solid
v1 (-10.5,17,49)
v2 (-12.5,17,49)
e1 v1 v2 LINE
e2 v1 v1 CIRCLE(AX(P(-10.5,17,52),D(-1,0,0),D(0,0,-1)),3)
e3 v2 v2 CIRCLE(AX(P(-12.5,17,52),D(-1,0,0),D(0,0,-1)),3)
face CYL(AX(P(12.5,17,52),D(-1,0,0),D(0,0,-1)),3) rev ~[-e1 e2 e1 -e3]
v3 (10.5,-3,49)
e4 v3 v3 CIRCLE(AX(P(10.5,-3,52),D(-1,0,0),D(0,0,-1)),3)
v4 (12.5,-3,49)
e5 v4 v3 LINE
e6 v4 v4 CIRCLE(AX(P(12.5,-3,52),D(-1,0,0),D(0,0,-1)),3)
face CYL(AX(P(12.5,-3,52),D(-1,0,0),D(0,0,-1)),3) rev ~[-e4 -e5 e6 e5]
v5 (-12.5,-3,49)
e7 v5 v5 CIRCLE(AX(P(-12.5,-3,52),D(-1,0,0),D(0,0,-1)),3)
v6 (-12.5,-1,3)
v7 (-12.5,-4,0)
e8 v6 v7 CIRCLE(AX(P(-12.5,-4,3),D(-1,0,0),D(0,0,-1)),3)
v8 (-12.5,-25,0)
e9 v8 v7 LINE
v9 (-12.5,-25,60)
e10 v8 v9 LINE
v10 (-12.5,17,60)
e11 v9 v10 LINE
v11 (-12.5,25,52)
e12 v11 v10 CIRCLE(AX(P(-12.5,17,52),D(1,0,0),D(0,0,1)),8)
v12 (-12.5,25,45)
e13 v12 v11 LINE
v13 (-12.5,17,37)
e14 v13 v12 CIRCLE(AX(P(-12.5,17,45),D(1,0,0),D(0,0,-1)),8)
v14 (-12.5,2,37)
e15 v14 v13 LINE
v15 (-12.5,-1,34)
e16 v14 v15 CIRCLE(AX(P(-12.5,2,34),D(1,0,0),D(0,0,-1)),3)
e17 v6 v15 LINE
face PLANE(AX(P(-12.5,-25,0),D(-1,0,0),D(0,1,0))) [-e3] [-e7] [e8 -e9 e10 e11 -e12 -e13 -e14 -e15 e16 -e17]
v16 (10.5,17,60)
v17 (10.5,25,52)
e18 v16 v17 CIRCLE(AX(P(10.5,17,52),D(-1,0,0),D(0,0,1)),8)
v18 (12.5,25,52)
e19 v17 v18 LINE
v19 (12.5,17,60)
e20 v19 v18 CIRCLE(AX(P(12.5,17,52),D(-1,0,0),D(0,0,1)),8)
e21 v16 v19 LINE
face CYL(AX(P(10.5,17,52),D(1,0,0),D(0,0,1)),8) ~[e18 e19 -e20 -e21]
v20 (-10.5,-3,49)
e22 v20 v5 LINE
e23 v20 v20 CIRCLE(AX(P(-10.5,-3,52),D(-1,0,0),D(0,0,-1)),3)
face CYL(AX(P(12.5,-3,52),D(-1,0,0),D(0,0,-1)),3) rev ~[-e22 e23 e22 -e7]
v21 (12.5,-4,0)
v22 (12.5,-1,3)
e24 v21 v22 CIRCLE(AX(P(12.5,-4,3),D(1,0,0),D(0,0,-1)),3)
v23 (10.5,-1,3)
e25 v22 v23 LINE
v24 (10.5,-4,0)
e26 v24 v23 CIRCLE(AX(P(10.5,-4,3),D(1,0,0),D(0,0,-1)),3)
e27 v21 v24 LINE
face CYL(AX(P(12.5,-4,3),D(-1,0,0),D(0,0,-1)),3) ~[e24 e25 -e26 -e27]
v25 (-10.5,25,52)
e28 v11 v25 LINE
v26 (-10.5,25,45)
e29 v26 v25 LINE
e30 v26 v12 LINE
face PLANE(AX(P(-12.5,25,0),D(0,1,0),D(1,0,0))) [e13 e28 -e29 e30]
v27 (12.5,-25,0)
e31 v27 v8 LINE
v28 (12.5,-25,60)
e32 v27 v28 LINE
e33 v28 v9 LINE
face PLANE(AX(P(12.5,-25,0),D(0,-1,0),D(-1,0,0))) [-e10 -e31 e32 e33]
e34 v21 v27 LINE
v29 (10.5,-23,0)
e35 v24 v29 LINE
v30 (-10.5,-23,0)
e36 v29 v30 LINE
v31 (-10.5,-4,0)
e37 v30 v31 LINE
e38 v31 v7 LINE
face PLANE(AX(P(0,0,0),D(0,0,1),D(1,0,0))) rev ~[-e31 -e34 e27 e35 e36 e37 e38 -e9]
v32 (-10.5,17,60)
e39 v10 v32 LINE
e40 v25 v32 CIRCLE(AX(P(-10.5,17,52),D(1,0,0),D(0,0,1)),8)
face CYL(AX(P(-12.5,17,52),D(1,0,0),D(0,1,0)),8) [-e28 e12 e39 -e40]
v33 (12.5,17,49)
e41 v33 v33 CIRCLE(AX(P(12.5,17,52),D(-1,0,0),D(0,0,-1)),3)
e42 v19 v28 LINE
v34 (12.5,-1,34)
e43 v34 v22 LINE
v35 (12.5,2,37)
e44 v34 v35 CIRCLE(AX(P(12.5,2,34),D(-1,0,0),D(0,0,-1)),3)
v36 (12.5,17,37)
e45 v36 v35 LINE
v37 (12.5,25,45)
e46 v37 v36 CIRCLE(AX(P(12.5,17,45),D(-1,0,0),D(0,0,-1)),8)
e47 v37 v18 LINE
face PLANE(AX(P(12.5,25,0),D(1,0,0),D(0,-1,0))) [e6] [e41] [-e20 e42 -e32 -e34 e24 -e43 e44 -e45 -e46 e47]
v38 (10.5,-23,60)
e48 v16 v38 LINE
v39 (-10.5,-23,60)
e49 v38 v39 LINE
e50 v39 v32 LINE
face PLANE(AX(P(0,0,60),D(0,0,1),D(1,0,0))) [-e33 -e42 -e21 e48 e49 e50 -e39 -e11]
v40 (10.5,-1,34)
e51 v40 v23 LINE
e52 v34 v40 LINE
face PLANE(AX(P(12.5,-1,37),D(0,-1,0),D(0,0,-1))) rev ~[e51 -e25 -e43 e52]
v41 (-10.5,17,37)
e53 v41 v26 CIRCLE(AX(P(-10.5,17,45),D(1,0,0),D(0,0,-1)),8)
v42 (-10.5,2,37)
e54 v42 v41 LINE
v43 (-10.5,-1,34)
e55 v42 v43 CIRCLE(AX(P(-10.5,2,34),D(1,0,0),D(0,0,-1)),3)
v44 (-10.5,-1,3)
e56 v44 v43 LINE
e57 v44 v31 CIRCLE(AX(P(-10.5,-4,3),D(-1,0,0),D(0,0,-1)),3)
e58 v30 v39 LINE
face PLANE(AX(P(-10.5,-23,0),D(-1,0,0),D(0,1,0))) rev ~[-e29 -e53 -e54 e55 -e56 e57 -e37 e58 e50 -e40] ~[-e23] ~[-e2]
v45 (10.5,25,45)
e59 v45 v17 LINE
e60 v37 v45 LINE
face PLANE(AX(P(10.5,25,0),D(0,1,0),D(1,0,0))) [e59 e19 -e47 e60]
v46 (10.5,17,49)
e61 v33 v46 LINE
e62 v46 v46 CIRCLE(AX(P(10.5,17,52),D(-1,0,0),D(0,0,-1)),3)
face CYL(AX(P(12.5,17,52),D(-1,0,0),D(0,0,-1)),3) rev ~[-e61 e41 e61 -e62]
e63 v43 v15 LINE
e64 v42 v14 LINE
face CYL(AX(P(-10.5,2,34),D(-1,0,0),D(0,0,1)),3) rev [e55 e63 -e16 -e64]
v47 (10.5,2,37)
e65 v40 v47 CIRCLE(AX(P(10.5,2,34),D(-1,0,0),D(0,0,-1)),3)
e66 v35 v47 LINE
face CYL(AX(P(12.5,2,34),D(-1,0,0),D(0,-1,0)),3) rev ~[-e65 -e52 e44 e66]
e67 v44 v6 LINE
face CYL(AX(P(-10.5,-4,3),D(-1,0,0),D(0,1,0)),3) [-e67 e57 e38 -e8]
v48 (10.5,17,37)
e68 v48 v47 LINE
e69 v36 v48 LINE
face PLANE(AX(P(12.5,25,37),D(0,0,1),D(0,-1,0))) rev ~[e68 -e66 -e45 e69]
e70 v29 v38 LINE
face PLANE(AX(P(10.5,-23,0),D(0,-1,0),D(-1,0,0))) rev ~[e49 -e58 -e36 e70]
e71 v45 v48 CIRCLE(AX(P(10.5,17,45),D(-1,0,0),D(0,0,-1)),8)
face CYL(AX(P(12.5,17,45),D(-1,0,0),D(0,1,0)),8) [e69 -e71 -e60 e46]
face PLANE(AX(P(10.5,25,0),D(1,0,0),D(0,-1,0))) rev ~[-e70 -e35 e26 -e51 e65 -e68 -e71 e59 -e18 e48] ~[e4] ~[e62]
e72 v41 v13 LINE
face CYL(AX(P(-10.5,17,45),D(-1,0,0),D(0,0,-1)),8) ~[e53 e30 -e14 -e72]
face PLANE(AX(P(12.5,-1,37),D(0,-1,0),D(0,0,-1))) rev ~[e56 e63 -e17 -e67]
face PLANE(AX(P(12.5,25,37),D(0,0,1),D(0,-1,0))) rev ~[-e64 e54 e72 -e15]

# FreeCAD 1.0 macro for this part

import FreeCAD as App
import Part
import Sketcher
from FreeCAD import Vector


def edges_at(feature, points):
    """Names of the edges that pass closest to the given points."""
    edges = feature.Shape.Edges
    near = lambda p: min(range(len(edges)), key=lambda i: edges[i].distToShape(Part.Vertex(*p))[0])
    return sorted({f"Edge{near(p) + 1}" for p in points})

doc = App.newDocument("Part")
params = doc.addObject("Spreadsheet::Sheet", "Params")
for row, (alias, value) in enumerate([
    ("sketch1_width", "2 mm"),
    ("sketch1_width2", "25 mm"),
    ("sketch1_height", "50 mm"),
    ("pad1_length", "60 mm"),
    ("sketch2_diameter", "6 mm"),
    ("hole_diameter", "6 mm"),
    ("sketch3_width", "26 mm"),
    ("sketch3_height", "37 mm"),
    ("fillet_radius", "3 mm"),
    ("fillet2_radius", "8 mm"),
    ("fillet3_radius", "3 mm"),
], start=1):
    params.set(f"A{row}", alias)
    params.set(f"B{row}", "=" + value)
    params.setAlias(f"B{row}", alias)

body = doc.addObject("PartDesign::Body", "Body")

# Sketch on XY plane
sketch1 = body.newObject("Sketcher::SketchObject", "Sketch")
sketch1.AttachmentSupport = (doc.getObject("XY_Plane"), [""])
sketch1.MapMode = "FlatFace"
sketch1.addGeometry(Part.LineSegment(Vector(-10.5, 25, 0), Vector(-12.5, 25, 0)), False)
sketch1.addGeometry(Part.LineSegment(Vector(-12.5, 25, 0), Vector(-12.5, -25, 0)), False)
sketch1.addGeometry(Part.LineSegment(Vector(-12.5, -25, 0), Vector(12.5, -25, 0)), False)
sketch1.addGeometry(Part.LineSegment(Vector(12.5, -25, 0), Vector(12.5, 25, 0)), False)
sketch1.addGeometry(Part.LineSegment(Vector(12.5, 25, 0), Vector(10.5, 25, 0)), False)
sketch1.addGeometry(Part.LineSegment(Vector(10.5, 25, 0), Vector(10.5, -23, 0)), False)
sketch1.addGeometry(Part.LineSegment(Vector(10.5, -23, 0), Vector(-10.5, -23, 0)), False)
sketch1.addGeometry(Part.LineSegment(Vector(-10.5, -23, 0), Vector(-10.5, 25, 0)), False)
sketch1.addConstraint(Sketcher.Constraint("Coincident", 0, 2, 1, 1))
sketch1.addConstraint(Sketcher.Constraint("Coincident", 1, 2, 2, 1))
sketch1.addConstraint(Sketcher.Constraint("Coincident", 2, 2, 3, 1))
sketch1.addConstraint(Sketcher.Constraint("Coincident", 3, 2, 4, 1))
sketch1.addConstraint(Sketcher.Constraint("Coincident", 4, 2, 5, 1))
sketch1.addConstraint(Sketcher.Constraint("Coincident", 5, 2, 6, 1))
sketch1.addConstraint(Sketcher.Constraint("Coincident", 6, 2, 7, 1))
sketch1.addConstraint(Sketcher.Constraint("Coincident", 7, 2, 0, 1))
sketch1.addConstraint(Sketcher.Constraint("Horizontal", 0))
sketch1.addConstraint(Sketcher.Constraint("Vertical", 1))
sketch1.addConstraint(Sketcher.Constraint("Horizontal", 2))
sketch1.addConstraint(Sketcher.Constraint("Vertical", 3))
sketch1.addConstraint(Sketcher.Constraint("Horizontal", 4))
sketch1.addConstraint(Sketcher.Constraint("Vertical", 5))
sketch1.addConstraint(Sketcher.Constraint("Horizontal", 6))
sketch1.addConstraint(Sketcher.Constraint("Vertical", 7))
sketch1.addConstraint(Sketcher.Constraint("Symmetric", 0, 2, 2, 2, -1, 1))
sketch1.addConstraint(Sketcher.Constraint("Symmetric", 4, 2, 7, 2, -2))
sketch1.addConstraint(Sketcher.Constraint("DistanceX", 0, 2, 0, 1, 2.0))
sketch1.addConstraint(Sketcher.Constraint("DistanceX", 2, 1, 2, 2, 25.0))
sketch1.addConstraint(Sketcher.Constraint("DistanceY", 1, 2, 1, 1, 50.0))
sketch1.addConstraint(Sketcher.Constraint("DistanceY", 2, 2, 5, 2, 2.0))
sketch1.setExpression("Constraints[18]", "Params.sketch1_width")
sketch1.setExpression("Constraints[19]", "Params.sketch1_width2")
sketch1.setExpression("Constraints[20]", "Params.sketch1_height")
pad1 = body.newObject("PartDesign::Pad", "Pad")
pad1.Profile = sketch1
pad1.setExpression("Length", "Params.pad1_length")

# Sketch on YZ plane
sketch2 = body.newObject("Sketcher::SketchObject", "Sketch001")
sketch2.AttachmentSupport = (doc.getObject("YZ_Plane"), [""])
sketch2.MapMode = "FlatFace"
sketch2.AttachmentOffset = App.Placement(Vector(0, 0, 12.5), App.Rotation())
sketch2.addGeometry(Part.Circle(Vector(17, 52, 0), Vector(0, 0, 1), 3), False)
sketch2.addGeometry(Part.Circle(Vector(-3, 52, 0), Vector(0, 0, 1), 3), False)
sketch2.addConstraint(Sketcher.Constraint("Equal", 0, 1))
sketch2.addConstraint(Sketcher.Constraint("Horizontal", 0, 3, 1, 3))
sketch2.addConstraint(Sketcher.Constraint("Diameter", 0, 6.0))
sketch2.addConstraint(Sketcher.Constraint("DistanceX", -1, 1, 0, 3, 17.0))
sketch2.addConstraint(Sketcher.Constraint("DistanceY", -1, 1, 0, 3, 52.0))
sketch2.addConstraint(Sketcher.Constraint("DistanceX", 1, 3, -1, 1, 3.0))
sketch2.setExpression("Constraints[2]", "Params.sketch2_diameter")
doc.recompute()
hole = body.newObject("PartDesign::Hole", "Hole")
hole.Profile = sketch2
hole.ThreadType = "None"
hole.setExpression("Diameter", "Params.hole_diameter")
hole.DepthType = "ThroughAll"

# Sketch on YZ plane
sketch3 = body.newObject("Sketcher::SketchObject", "Sketch002")
sketch3.AttachmentSupport = (doc.getObject("YZ_Plane"), [""])
sketch3.MapMode = "FlatFace"
sketch3.AttachmentOffset = App.Placement(Vector(0, 0, 12.5), App.Rotation())
sketch3.addGeometry(Part.LineSegment(Vector(-1, 0, 0), Vector(25, 0, 0)), False)
sketch3.addGeometry(Part.LineSegment(Vector(25, 0, 0), Vector(25, 37, 0)), False)
sketch3.addGeometry(Part.LineSegment(Vector(25, 37, 0), Vector(-1, 37, 0)), False)
sketch3.addGeometry(Part.LineSegment(Vector(-1, 37, 0), Vector(-1, 0, 0)), False)
sketch3.addConstraint(Sketcher.Constraint("Coincident", 0, 2, 1, 1))
sketch3.addConstraint(Sketcher.Constraint("Coincident", 1, 2, 2, 1))
sketch3.addConstraint(Sketcher.Constraint("Coincident", 2, 2, 3, 1))
sketch3.addConstraint(Sketcher.Constraint("Coincident", 3, 2, 0, 1))
sketch3.addConstraint(Sketcher.Constraint("Horizontal", 0))
sketch3.addConstraint(Sketcher.Constraint("Vertical", 1))
sketch3.addConstraint(Sketcher.Constraint("Horizontal", 2))
sketch3.addConstraint(Sketcher.Constraint("Vertical", 3))
sketch3.addConstraint(Sketcher.Constraint("PointOnObject", 0, 2, -1))
sketch3.addConstraint(Sketcher.Constraint("DistanceX", 0, 1, 0, 2, 26.0))
sketch3.addConstraint(Sketcher.Constraint("DistanceY", 1, 1, 1, 2, 37.0))
sketch3.addConstraint(Sketcher.Constraint("DistanceX", -1, 1, 0, 2, 25.0))
sketch3.setExpression("Constraints[9]", "Params.sketch3_width")
sketch3.setExpression("Constraints[10]", "Params.sketch3_height")
pocket1 = body.newObject("PartDesign::Pocket", "Pocket")
pocket1.Profile = sketch3
pocket1.Type = "ThroughAll"
doc.recompute()

fillet = body.newObject("PartDesign::Fillet", "Fillet")
fillet.Base = (pocket1, edges_at(pocket1, [(11.5, -1, 37), (-11.5, -1, 37)]))
fillet.setExpression("Radius", "Params.fillet_radius")
doc.recompute()

fillet2 = body.newObject("PartDesign::Fillet", "Fillet001")
fillet2.Base = (fillet, edges_at(fillet, [
    (-11.5, 25, 60),
    (11.5, 25, 60),
    (11.5, 25, 37),
    (-11.5, 25, 37),
]))
fillet2.setExpression("Radius", "Params.fillet2_radius")
doc.recompute()

fillet3 = body.newObject("PartDesign::Fillet", "Fillet002")
fillet3.Base = (fillet2, edges_at(fillet2, [(11.5, -1, 0), (-11.5, -1, 0)]))
fillet3.setExpression("Radius", "Params.fillet3_radius")

doc.recompute()
